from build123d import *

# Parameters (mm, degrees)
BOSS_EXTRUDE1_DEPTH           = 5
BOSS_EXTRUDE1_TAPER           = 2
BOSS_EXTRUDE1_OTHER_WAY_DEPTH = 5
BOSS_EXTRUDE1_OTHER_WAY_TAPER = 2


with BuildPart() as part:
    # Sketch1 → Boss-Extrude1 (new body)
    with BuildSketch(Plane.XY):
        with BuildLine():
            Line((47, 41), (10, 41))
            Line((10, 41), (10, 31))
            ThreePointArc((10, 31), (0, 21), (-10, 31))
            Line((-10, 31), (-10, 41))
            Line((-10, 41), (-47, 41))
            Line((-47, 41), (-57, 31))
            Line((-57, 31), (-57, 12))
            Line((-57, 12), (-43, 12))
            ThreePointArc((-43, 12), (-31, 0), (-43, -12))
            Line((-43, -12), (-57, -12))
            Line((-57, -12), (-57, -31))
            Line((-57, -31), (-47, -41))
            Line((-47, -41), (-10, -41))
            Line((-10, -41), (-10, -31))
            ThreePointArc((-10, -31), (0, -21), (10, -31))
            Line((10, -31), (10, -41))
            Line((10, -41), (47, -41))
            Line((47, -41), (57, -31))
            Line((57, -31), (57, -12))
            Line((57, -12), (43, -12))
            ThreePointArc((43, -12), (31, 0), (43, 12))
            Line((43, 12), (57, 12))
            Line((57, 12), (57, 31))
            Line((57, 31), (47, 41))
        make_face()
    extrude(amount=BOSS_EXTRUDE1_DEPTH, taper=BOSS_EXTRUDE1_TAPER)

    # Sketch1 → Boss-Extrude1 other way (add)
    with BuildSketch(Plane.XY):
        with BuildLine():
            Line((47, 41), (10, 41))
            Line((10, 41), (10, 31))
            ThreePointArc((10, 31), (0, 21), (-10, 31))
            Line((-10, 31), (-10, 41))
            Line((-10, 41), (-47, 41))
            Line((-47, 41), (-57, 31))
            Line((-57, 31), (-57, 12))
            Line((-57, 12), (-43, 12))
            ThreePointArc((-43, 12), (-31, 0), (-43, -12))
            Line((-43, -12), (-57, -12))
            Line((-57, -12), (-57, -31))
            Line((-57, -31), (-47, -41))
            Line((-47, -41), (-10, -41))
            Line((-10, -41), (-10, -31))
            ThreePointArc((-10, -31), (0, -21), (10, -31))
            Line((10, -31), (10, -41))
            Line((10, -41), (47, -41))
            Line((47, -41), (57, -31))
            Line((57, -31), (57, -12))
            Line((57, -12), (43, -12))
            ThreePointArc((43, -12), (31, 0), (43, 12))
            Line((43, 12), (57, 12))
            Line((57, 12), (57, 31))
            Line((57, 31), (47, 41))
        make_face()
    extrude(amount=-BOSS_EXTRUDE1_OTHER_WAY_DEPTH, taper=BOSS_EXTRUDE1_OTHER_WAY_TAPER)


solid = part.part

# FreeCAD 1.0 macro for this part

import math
import FreeCAD as App
import Part
import Sketcher
from FreeCAD import Vector
Q = App.Units.Quantity

doc = App.newDocument("Part")
params = doc.addObject("Spreadsheet::Sheet", "Params")
for row, (alias, value) in enumerate([
    ("sketch1_radius", "10 mm"),
    ("sketch1_radius2", "12 mm"),
    ("sketch1_width", "37 mm"),
    ("sketch1_width2", "14 mm"),
    ("sketch1_height", "10 mm"),
    ("pad1_length", "5 mm"),
    ("pad1_taper", "-2 deg"),
    ("sketch2_radius", "10 mm"),
    ("sketch2_radius2", "12 mm"),
    ("sketch2_width", "37 mm"),
    ("sketch2_width2", "14 mm"),
    ("sketch2_height", "10 mm"),
    ("pad2_length", "5 mm"),
    ("pad2_taper", "-2 deg"),
], start=1):
    params.set(f"A{row}", alias)
    params.set(f"B{row}", "=" + value)
    params.setAlias(f"B{row}", alias)

body = doc.addObject("PartDesign::Body", "Body")

# Sketch on XY plane
sketch1 = doc.addObject("Sketcher::SketchObject", "Sketch")
body.addObject(sketch1)
sketch1.AttachmentSupport = (doc.XY_Plane, [""])
sketch1.MapMode = "FlatFace"
sketch1.addGeometry([
    Part.LineSegment(Vector(47, 41, 0), Vector(10, 41, 0)),  # 0
    Part.LineSegment(Vector(10, 41, 0), Vector(10, 31, 0)),  # 1
    Part.ArcOfCircle(Part.Circle(Vector(0, 31, 0), Vector(0, 0, 1), 10), math.radians(180), math.radians(360)),  # 2
    Part.LineSegment(Vector(-10, 31, 0), Vector(-10, 41, 0)),  # 3
    Part.LineSegment(Vector(-10, 41, 0), Vector(-47, 41, 0)),  # 4
    Part.LineSegment(Vector(-47, 41, 0), Vector(-57, 31, 0)),  # 5
    Part.LineSegment(Vector(-57, 31, 0), Vector(-57, 12, 0)),  # 6
    Part.LineSegment(Vector(-57, 12, 0), Vector(-43, 12, 0)),  # 7
    Part.ArcOfCircle(Part.Circle(Vector(-43, 0, 0), Vector(0, 0, 1), 12), math.radians(-90), math.radians(90)),  # 8
    Part.LineSegment(Vector(-43, -12, 0), Vector(-57, -12, 0)),  # 9
    Part.LineSegment(Vector(-57, -12, 0), Vector(-57, -31, 0)),  # 10
    Part.LineSegment(Vector(-57, -31, 0), Vector(-47, -41, 0)),  # 11
    Part.LineSegment(Vector(-47, -41, 0), Vector(-10, -41, 0)),  # 12
    Part.LineSegment(Vector(-10, -41, 0), Vector(-10, -31, 0)),  # 13
    Part.ArcOfCircle(Part.Circle(Vector(0, -31, 0), Vector(0, 0, 1), 10), math.radians(0), math.radians(180)),  # 14
    Part.LineSegment(Vector(10, -31, 0), Vector(10, -41, 0)),  # 15
    Part.LineSegment(Vector(10, -41, 0), Vector(47, -41, 0)),  # 16
    Part.LineSegment(Vector(47, -41, 0), Vector(57, -31, 0)),  # 17
    Part.LineSegment(Vector(57, -31, 0), Vector(57, -12, 0)),  # 18
    Part.LineSegment(Vector(57, -12, 0), Vector(43, -12, 0)),  # 19
    Part.ArcOfCircle(Part.Circle(Vector(43, 0, 0), Vector(0, 0, 1), 12), math.radians(90), math.radians(270)),  # 20
    Part.LineSegment(Vector(43, 12, 0), Vector(57, 12, 0)),  # 21
    Part.LineSegment(Vector(57, 12, 0), Vector(57, 31, 0)),  # 22
    Part.LineSegment(Vector(57, 31, 0), Vector(47, 41, 0)),  # 23
], False)
sketch1.addConstraint([
    Sketcher.Constraint("Coincident", 0, 2, 1, 1),
    Sketcher.Constraint("Tangent", 1, 2, 2, 2),
    Sketcher.Constraint("Tangent", 2, 1, 3, 1),
    Sketcher.Constraint("Coincident", 3, 2, 4, 1),
    Sketcher.Constraint("Coincident", 4, 2, 5, 1),
    Sketcher.Constraint("Coincident", 5, 2, 6, 1),
    Sketcher.Constraint("Coincident", 6, 2, 7, 1),
    Sketcher.Constraint("Tangent", 7, 2, 8, 2),
    Sketcher.Constraint("Tangent", 8, 1, 9, 1),
    Sketcher.Constraint("Coincident", 9, 2, 10, 1),
    Sketcher.Constraint("Coincident", 10, 2, 11, 1),
    Sketcher.Constraint("Coincident", 11, 2, 12, 1),
    Sketcher.Constraint("Coincident", 12, 2, 13, 1),
    Sketcher.Constraint("Tangent", 13, 2, 14, 2),
    Sketcher.Constraint("Tangent", 14, 1, 15, 1),
    Sketcher.Constraint("Coincident", 15, 2, 16, 1),
    Sketcher.Constraint("Coincident", 16, 2, 17, 1),
    Sketcher.Constraint("Coincident", 17, 2, 18, 1),
    Sketcher.Constraint("Coincident", 18, 2, 19, 1),
    Sketcher.Constraint("Tangent", 19, 2, 20, 2),
    Sketcher.Constraint("Tangent", 20, 1, 21, 1),
    Sketcher.Constraint("Coincident", 21, 2, 22, 1),
    Sketcher.Constraint("Coincident", 22, 2, 23, 1),
    Sketcher.Constraint("Coincident", 23, 2, 0, 1),
    Sketcher.Constraint("Horizontal", 0),
    Sketcher.Constraint("Vertical", 1),
    Sketcher.Constraint("Vertical", 3),
    Sketcher.Constraint("Horizontal", 4),
    Sketcher.Constraint("Vertical", 6),
    Sketcher.Constraint("Horizontal", 7),
    Sketcher.Constraint("Horizontal", 9),
    Sketcher.Constraint("Vertical", 10),
    Sketcher.Constraint("Horizontal", 12),
    Sketcher.Constraint("Vertical", 13),
    Sketcher.Constraint("Vertical", 15),
    Sketcher.Constraint("Horizontal", 16),
    Sketcher.Constraint("Vertical", 18),
    Sketcher.Constraint("Horizontal", 19),
    Sketcher.Constraint("Horizontal", 21),
    Sketcher.Constraint("Vertical", 22),
    Sketcher.Constraint("Equal", 2, 14),
    Sketcher.Constraint("Equal", 8, 20),
    Sketcher.Constraint("Symmetric", 2, 3, 14, 3, -1, 1),
    Sketcher.Constraint("Symmetric", 8, 3, 20, 3, -1, 1),
    Sketcher.Constraint("Symmetric", 4, 2, 16, 2, -1, 1),
    Sketcher.Constraint("Symmetric", 5, 2, 17, 2, -1, 1),
    Sketcher.Constraint("Symmetric", 10, 2, 22, 2, -1, 1),
    Sketcher.Constraint("Symmetric", 11, 2, 23, 2, -1, 1),
    Sketcher.Constraint("Symmetric", 0, 2, 3, 2, -2),
    Sketcher.Constraint("Symmetric", 10, 2, 17, 2, -2),
    Sketcher.Constraint("PointOnObject", 8, 3, -1),
    Sketcher.Constraint("Perpendicular", 5, 11),
    Sketcher.Constraint("Horizontal", 2, 1, 5, 2),
    Sketcher.Constraint("Vertical", 4, 2, 11, 2),
    Sketcher.Constraint("Radius", 2, Q("10 mm")),
    Sketcher.Constraint("Radius", 8, Q("12 mm")),
    Sketcher.Constraint("DistanceX", 0, 2, 0, 1, Q("37 mm")),
    Sketcher.Constraint("DistanceX", 7, 1, 7, 2, Q("14 mm")),
    Sketcher.Constraint("DistanceY", 1, 2, 1, 1, Q("10 mm")),
    Sketcher.Constraint("DistanceY", 6, 2, 6, 1, Q("19 mm")),
])
sketch1.setExpression("Constraints[54]", "Params.sketch1_radius")
sketch1.setExpression("Constraints[55]", "Params.sketch1_radius2")
sketch1.setExpression("Constraints[56]", "Params.sketch1_width")
sketch1.setExpression("Constraints[57]", "Params.sketch1_width2")
sketch1.setExpression("Constraints[58]", "Params.sketch1_height")
pad1 = doc.addObject("PartDesign::Pad", "Pad")
body.addObject(pad1)
pad1.Profile = sketch1
pad1.setExpression("Length", "Params.pad1_length")
pad1.setExpression("TaperAngle", "Params.pad1_taper")

# Sketch on XY plane
sketch2 = doc.addObject("Sketcher::SketchObject", "Sketch001")
body.addObject(sketch2)
sketch2.AttachmentSupport = (doc.XY_Plane, [""])
sketch2.MapMode = "FlatFace"
sketch2.addGeometry([
    Part.LineSegment(Vector(47, 41, 0), Vector(10, 41, 0)),  # 0
    Part.LineSegment(Vector(10, 41, 0), Vector(10, 31, 0)),  # 1
    Part.ArcOfCircle(Part.Circle(Vector(0, 31, 0), Vector(0, 0, 1), 10), math.radians(180), math.radians(360)),  # 2
    Part.LineSegment(Vector(-10, 31, 0), Vector(-10, 41, 0)),  # 3
    Part.LineSegment(Vector(-10, 41, 0), Vector(-47, 41, 0)),  # 4
    Part.LineSegment(Vector(-47, 41, 0), Vector(-57, 31, 0)),  # 5
    Part.LineSegment(Vector(-57, 31, 0), Vector(-57, 12, 0)),  # 6
    Part.LineSegment(Vector(-57, 12, 0), Vector(-43, 12, 0)),  # 7
    Part.ArcOfCircle(Part.Circle(Vector(-43, 0, 0), Vector(0, 0, 1), 12), math.radians(-90), math.radians(90)),  # 8
    Part.LineSegment(Vector(-43, -12, 0), Vector(-57, -12, 0)),  # 9
    Part.LineSegment(Vector(-57, -12, 0), Vector(-57, -31, 0)),  # 10
    Part.LineSegment(Vector(-57, -31, 0), Vector(-47, -41, 0)),  # 11
    Part.LineSegment(Vector(-47, -41, 0), Vector(-10, -41, 0)),  # 12
    Part.LineSegment(Vector(-10, -41, 0), Vector(-10, -31, 0)),  # 13
    Part.ArcOfCircle(Part.Circle(Vector(0, -31, 0), Vector(0, 0, 1), 10), math.radians(0), math.radians(180)),  # 14
    Part.LineSegment(Vector(10, -31, 0), Vector(10, -41, 0)),  # 15
    Part.LineSegment(Vector(10, -41, 0), Vector(47, -41, 0)),  # 16
    Part.LineSegment(Vector(47, -41, 0), Vector(57, -31, 0)),  # 17
    Part.LineSegment(Vector(57, -31, 0), Vector(57, -12, 0)),  # 18
    Part.LineSegment(Vector(57, -12, 0), Vector(43, -12, 0)),  # 19
    Part.ArcOfCircle(Part.Circle(Vector(43, 0, 0), Vector(0, 0, 1), 12), math.radians(90), math.radians(270)),  # 20
    Part.LineSegment(Vector(43, 12, 0), Vector(57, 12, 0)),  # 21
    Part.LineSegment(Vector(57, 12, 0), Vector(57, 31, 0)),  # 22
    Part.LineSegment(Vector(57, 31, 0), Vector(47, 41, 0)),  # 23
], False)
sketch2.addConstraint([
    Sketcher.Constraint("Coincident", 0, 2, 1, 1),
    Sketcher.Constraint("Tangent", 1, 2, 2, 2),
    Sketcher.Constraint("Tangent", 2, 1, 3, 1),
    Sketcher.Constraint("Coincident", 3, 2, 4, 1),
    Sketcher.Constraint("Coincident", 4, 2, 5, 1),
    Sketcher.Constraint("Coincident", 5, 2, 6, 1),
    Sketcher.Constraint("Coincident", 6, 2, 7, 1),
    Sketcher.Constraint("Tangent", 7, 2, 8, 2),
    Sketcher.Constraint("Tangent", 8, 1, 9, 1),
    Sketcher.Constraint("Coincident", 9, 2, 10, 1),
    Sketcher.Constraint("Coincident", 10, 2, 11, 1),
    Sketcher.Constraint("Coincident", 11, 2, 12, 1),
    Sketcher.Constraint("Coincident", 12, 2, 13, 1),
    Sketcher.Constraint("Tangent", 13, 2, 14, 2),
    Sketcher.Constraint("Tangent", 14, 1, 15, 1),
    Sketcher.Constraint("Coincident", 15, 2, 16, 1),
    Sketcher.Constraint("Coincident", 16, 2, 17, 1),
    Sketcher.Constraint("Coincident", 17, 2, 18, 1),
    Sketcher.Constraint("Coincident", 18, 2, 19, 1),
    Sketcher.Constraint("Tangent", 19, 2, 20, 2),
    Sketcher.Constraint("Tangent", 20, 1, 21, 1),
    Sketcher.Constraint("Coincident", 21, 2, 22, 1),
    Sketcher.Constraint("Coincident", 22, 2, 23, 1),
    Sketcher.Constraint("Coincident", 23, 2, 0, 1),
    Sketcher.Constraint("Horizontal", 0),
    Sketcher.Constraint("Vertical", 1),
    Sketcher.Constraint("Vertical", 3),
    Sketcher.Constraint("Horizontal", 4),
    Sketcher.Constraint("Vertical", 6),
    Sketcher.Constraint("Horizontal", 7),
    Sketcher.Constraint("Horizontal", 9),
    Sketcher.Constraint("Vertical", 10),
    Sketcher.Constraint("Horizontal", 12),
    Sketcher.Constraint("Vertical", 13),
    Sketcher.Constraint("Vertical", 15),
    Sketcher.Constraint("Horizontal", 16),
    Sketcher.Constraint("Vertical", 18),
    Sketcher.Constraint("Horizontal", 19),
    Sketcher.Constraint("Horizontal", 21),
    Sketcher.Constraint("Vertical", 22),
    Sketcher.Constraint("Equal", 2, 14),
    Sketcher.Constraint("Equal", 8, 20),
    Sketcher.Constraint("Symmetric", 2, 3, 14, 3, -1, 1),
    Sketcher.Constraint("Symmetric", 8, 3, 20, 3, -1, 1),
    Sketcher.Constraint("Symmetric", 4, 2, 16, 2, -1, 1),
    Sketcher.Constraint("Symmetric", 5, 2, 17, 2, -1, 1),
    Sketcher.Constraint("Symmetric", 10, 2, 22, 2, -1, 1),
    Sketcher.Constraint("Symmetric", 11, 2, 23, 2, -1, 1),
    Sketcher.Constraint("Symmetric", 0, 2, 3, 2, -2),
    Sketcher.Constraint("Symmetric", 10, 2, 17, 2, -2),
    Sketcher.Constraint("PointOnObject", 8, 3, -1),
    Sketcher.Constraint("Perpendicular", 5, 11),
    Sketcher.Constraint("Horizontal", 2, 1, 5, 2),
    Sketcher.Constraint("Vertical", 4, 2, 11, 2),
    Sketcher.Constraint("Radius", 2, Q("10 mm")),
    Sketcher.Constraint("Radius", 8, Q("12 mm")),
    Sketcher.Constraint("DistanceX", 0, 2, 0, 1, Q("37 mm")),
    Sketcher.Constraint("DistanceX", 7, 1, 7, 2, Q("14 mm")),
    Sketcher.Constraint("DistanceY", 1, 2, 1, 1, Q("10 mm")),
    Sketcher.Constraint("DistanceY", 6, 2, 6, 1, Q("19 mm")),
])
sketch2.setExpression("Constraints[54]", "Params.sketch2_radius")
sketch2.setExpression("Constraints[55]", "Params.sketch2_radius2")
sketch2.setExpression("Constraints[56]", "Params.sketch2_width")
sketch2.setExpression("Constraints[57]", "Params.sketch2_width2")
sketch2.setExpression("Constraints[58]", "Params.sketch2_height")
pad2 = doc.addObject("PartDesign::Pad", "Pad001")
body.addObject(pad2)
pad2.Profile = sketch2
pad2.setExpression("Length", "Params.pad2_length")
pad2.Reversed = True
pad2.setExpression("TaperAngle", "Params.pad2_taper")

doc.recompute()
